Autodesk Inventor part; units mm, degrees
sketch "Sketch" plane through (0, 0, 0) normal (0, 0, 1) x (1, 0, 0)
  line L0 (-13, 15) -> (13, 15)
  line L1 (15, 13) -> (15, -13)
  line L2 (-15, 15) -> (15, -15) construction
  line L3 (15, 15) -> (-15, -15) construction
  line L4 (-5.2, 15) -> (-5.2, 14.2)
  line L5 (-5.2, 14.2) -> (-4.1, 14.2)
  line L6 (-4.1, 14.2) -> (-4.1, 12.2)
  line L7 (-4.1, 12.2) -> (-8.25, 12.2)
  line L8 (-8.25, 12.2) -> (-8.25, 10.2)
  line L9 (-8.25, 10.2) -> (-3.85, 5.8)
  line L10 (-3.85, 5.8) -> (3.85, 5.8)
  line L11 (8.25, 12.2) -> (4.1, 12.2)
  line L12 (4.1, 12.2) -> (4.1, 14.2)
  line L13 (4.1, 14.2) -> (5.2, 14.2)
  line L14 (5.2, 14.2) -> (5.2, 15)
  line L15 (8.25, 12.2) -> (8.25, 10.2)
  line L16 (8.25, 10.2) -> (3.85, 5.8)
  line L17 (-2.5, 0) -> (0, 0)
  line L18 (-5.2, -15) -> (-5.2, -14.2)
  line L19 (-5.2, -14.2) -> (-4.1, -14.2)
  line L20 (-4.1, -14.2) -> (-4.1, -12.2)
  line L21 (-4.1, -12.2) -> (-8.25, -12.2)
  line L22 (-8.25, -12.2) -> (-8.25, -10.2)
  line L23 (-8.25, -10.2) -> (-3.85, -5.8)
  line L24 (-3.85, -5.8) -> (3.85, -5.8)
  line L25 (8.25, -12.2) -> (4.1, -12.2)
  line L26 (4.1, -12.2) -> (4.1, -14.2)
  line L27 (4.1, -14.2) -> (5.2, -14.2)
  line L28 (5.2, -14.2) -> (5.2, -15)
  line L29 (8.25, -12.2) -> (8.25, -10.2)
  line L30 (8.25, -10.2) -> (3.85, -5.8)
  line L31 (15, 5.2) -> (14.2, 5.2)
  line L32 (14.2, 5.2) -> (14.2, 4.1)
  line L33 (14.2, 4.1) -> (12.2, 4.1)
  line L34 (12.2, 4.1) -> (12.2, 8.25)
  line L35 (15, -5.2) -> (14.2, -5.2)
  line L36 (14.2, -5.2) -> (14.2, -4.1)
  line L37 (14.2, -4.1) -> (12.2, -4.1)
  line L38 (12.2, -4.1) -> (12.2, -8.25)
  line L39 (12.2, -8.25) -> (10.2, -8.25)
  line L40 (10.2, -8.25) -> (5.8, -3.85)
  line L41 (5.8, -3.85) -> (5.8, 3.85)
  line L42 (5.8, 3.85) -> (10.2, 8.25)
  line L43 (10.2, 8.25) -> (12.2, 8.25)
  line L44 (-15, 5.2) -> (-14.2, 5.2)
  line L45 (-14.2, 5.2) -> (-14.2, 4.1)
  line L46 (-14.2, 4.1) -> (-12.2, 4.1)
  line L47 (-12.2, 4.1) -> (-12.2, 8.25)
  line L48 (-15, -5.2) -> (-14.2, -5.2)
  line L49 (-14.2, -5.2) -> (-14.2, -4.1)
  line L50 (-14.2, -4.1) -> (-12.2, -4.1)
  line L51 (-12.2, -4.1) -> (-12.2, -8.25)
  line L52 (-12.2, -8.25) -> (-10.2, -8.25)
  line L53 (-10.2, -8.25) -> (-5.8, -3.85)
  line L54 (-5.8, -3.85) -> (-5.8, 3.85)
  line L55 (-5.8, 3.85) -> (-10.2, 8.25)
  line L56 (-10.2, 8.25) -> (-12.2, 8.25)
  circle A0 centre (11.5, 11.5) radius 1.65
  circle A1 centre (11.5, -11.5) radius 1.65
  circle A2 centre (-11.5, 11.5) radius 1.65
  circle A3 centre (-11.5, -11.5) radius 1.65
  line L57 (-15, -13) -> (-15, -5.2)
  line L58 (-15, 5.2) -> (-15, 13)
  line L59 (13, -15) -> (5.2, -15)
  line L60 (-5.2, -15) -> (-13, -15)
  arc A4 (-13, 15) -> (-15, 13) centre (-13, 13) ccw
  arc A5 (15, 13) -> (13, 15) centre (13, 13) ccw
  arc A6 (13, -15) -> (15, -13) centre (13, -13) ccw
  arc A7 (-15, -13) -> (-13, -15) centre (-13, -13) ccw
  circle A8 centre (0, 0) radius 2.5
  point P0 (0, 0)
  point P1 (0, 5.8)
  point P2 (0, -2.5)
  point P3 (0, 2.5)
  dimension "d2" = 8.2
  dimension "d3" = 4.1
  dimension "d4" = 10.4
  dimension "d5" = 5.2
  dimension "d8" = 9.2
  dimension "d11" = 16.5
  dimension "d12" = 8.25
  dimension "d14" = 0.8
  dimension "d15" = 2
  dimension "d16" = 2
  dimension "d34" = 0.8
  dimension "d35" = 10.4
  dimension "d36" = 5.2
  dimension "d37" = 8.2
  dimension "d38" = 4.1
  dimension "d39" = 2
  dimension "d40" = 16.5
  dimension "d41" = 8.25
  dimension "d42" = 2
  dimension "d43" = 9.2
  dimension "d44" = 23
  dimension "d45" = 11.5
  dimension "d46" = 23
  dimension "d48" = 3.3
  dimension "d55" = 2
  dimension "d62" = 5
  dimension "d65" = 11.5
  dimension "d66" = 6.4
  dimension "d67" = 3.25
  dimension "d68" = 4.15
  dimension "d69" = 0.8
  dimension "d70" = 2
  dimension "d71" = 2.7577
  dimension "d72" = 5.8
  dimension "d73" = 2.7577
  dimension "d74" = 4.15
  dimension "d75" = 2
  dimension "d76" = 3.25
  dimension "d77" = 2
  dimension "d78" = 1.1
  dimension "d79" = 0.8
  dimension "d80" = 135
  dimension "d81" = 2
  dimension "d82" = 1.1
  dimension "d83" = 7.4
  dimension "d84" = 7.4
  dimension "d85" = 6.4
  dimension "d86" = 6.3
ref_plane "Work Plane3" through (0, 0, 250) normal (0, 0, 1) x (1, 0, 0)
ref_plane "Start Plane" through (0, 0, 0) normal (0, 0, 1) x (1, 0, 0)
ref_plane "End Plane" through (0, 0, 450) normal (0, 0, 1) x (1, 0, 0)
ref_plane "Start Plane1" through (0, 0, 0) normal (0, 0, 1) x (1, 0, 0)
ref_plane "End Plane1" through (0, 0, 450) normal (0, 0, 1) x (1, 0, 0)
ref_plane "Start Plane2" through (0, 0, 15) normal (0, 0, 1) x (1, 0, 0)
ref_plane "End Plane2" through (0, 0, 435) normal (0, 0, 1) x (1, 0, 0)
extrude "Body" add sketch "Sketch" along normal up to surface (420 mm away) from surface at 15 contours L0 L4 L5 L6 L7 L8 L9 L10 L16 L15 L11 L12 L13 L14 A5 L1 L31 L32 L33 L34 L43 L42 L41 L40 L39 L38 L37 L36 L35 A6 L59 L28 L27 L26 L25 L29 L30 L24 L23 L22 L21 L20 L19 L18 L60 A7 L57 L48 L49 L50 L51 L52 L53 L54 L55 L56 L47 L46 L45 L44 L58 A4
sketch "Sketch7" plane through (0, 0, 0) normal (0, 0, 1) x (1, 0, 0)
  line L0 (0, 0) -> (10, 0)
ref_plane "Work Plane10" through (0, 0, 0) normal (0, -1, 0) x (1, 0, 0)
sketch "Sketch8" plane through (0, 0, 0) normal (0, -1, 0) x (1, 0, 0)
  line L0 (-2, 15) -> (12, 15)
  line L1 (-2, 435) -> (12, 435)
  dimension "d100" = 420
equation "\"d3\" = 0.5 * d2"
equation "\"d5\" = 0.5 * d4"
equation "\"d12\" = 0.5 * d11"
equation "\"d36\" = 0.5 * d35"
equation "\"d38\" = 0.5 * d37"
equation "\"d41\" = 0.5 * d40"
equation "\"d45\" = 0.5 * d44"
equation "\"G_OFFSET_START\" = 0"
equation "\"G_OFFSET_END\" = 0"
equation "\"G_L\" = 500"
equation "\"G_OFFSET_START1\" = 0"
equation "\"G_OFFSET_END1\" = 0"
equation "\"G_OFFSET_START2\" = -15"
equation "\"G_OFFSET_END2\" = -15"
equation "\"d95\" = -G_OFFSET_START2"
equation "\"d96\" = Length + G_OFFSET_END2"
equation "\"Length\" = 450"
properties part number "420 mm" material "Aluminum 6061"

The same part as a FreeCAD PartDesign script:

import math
import FreeCAD as App
import Part
import Sketcher

V = App.Vector
Q = App.Units.Quantity

doc = App.newDocument("Part")
body = doc.addObject("PartDesign::Body", "Body")

# Sketch on XY plane
sketch1 = body.newObject("Sketcher::SketchObject", "Sketch")
sketch1.AttachmentSupport = (doc.getObject("XY_Plane"), [""])
sketch1.MapMode = "FlatFace"
sketch1.AttachmentOffset = App.Placement(V(0, 0, 15), App.Rotation())
sketch1.addGeometry([
    Part.LineSegment(V(-5.2, 15, 0), V(-13, 15, 0)),  # 0
    Part.ArcOfCircle(Part.Circle(V(-13, 13, 0), V(0, 0, 1), 2), math.radians(90), math.radians(180)),  # 1
    Part.LineSegment(V(-15, 13, 0), V(-15, 5.2, 0)),  # 2
    Part.LineSegment(V(-15, 5.2, 0), V(-14.2, 5.2, 0)),  # 3
    Part.LineSegment(V(-14.2, 5.2, 0), V(-14.2, 4.1, 0)),  # 4
    Part.LineSegment(V(-14.2, 4.1, 0), V(-12.2, 4.1, 0)),  # 5
    Part.LineSegment(V(-12.2, 4.1, 0), V(-12.2, 8.25, 0)),  # 6
    Part.LineSegment(V(-12.2, 8.25, 0), V(-10.2, 8.25, 0)),  # 7
    Part.LineSegment(V(-10.2, 8.25, 0), V(-5.8, 3.85, 0)),  # 8
    Part.LineSegment(V(-5.8, 3.85, 0), V(-5.8, -3.85, 0)),  # 9
    Part.LineSegment(V(-5.8, -3.85, 0), V(-10.2, -8.25, 0)),  # 10
    Part.LineSegment(V(-10.2, -8.25, 0), V(-12.2, -8.25, 0)),  # 11
    Part.LineSegment(V(-12.2, -8.25, 0), V(-12.2, -4.1, 0)),  # 12
    Part.LineSegment(V(-12.2, -4.1, 0), V(-14.2, -4.1, 0)),  # 13
    Part.LineSegment(V(-14.2, -4.1, 0), V(-14.2, -5.2, 0)),  # 14
    Part.LineSegment(V(-14.2, -5.2, 0), V(-15, -5.2, 0)),  # 15
    Part.LineSegment(V(-15, -5.2, 0), V(-15, -13, 0)),  # 16
    Part.ArcOfCircle(Part.Circle(V(-13, -13, 0), V(0, 0, 1), 2), math.radians(180), math.radians(270)),  # 17
    Part.LineSegment(V(-13, -15, 0), V(-5.2, -15, 0)),  # 18
    Part.LineSegment(V(-5.2, -15, 0), V(-5.2, -14.2, 0)),  # 19
    Part.LineSegment(V(-5.2, -14.2, 0), V(-4.1, -14.2, 0)),  # 20
    Part.LineSegment(V(-4.1, -14.2, 0), V(-4.1, -12.2, 0)),  # 21
    Part.LineSegment(V(-4.1, -12.2, 0), V(-8.25, -12.2, 0)),  # 22
    Part.LineSegment(V(-8.25, -12.2, 0), V(-8.25, -10.2, 0)),  # 23
    Part.LineSegment(V(-8.25, -10.2, 0), V(-3.85, -5.8, 0)),  # 24
    Part.LineSegment(V(-3.85, -5.8, 0), V(3.85, -5.8, 0)),  # 25
    Part.LineSegment(V(3.85, -5.8, 0), V(8.25, -10.2, 0)),  # 26
    Part.LineSegment(V(8.25, -10.2, 0), V(8.25, -12.2, 0)),  # 27
    Part.LineSegment(V(8.25, -12.2, 0), V(4.1, -12.2, 0)),  # 28
    Part.LineSegment(V(4.1, -12.2, 0), V(4.1, -14.2, 0)),  # 29
    Part.LineSegment(V(4.1, -14.2, 0), V(5.2, -14.2, 0)),  # 30
    Part.LineSegment(V(5.2, -14.2, 0), V(5.2, -15, 0)),  # 31
    Part.LineSegment(V(5.2, -15, 0), V(13, -15, 0)),  # 32
    Part.ArcOfCircle(Part.Circle(V(13, -13, 0), V(0, 0, 1), 2), math.radians(-90), math.radians(0)),  # 33
    Part.LineSegment(V(15, -13, 0), V(15, -5.2, 0)),  # 34
    Part.LineSegment(V(15, -5.2, 0), V(14.2, -5.2, 0)),  # 35
    Part.LineSegment(V(14.2, -5.2, 0), V(14.2, -4.1, 0)),  # 36
    Part.LineSegment(V(14.2, -4.1, 0), V(12.2, -4.1, 0)),  # 37
    Part.LineSegment(V(12.2, -4.1, 0), V(12.2, -8.25, 0)),  # 38
    Part.LineSegment(V(12.2, -8.25, 0), V(10.2, -8.25, 0)),  # 39
    Part.LineSegment(V(10.2, -8.25, 0), V(5.8, -3.85, 0)),  # 40
    Part.LineSegment(V(5.8, -3.85, 0), V(5.8, 3.85, 0)),  # 41
    Part.LineSegment(V(5.8, 3.85, 0), V(10.2, 8.25, 0)),  # 42
    Part.LineSegment(V(10.2, 8.25, 0), V(12.2, 8.25, 0)),  # 43
    Part.LineSegment(V(12.2, 8.25, 0), V(12.2, 4.1, 0)),  # 44
    Part.LineSegment(V(12.2, 4.1, 0), V(14.2, 4.1, 0)),  # 45
    Part.LineSegment(V(14.2, 4.1, 0), V(14.2, 5.2, 0)),  # 46
    Part.LineSegment(V(14.2, 5.2, 0), V(15, 5.2, 0)),  # 47
    Part.LineSegment(V(15, 5.2, 0), V(15, 13, 0)),  # 48
    Part.ArcOfCircle(Part.Circle(V(13, 13, 0), V(0, 0, 1), 2), math.radians(0), math.radians(90)),  # 49
    Part.LineSegment(V(13, 15, 0), V(5.2, 15, 0)),  # 50
    Part.LineSegment(V(5.2, 15, 0), V(5.2, 14.2, 0)),  # 51
    Part.LineSegment(V(5.2, 14.2, 0), V(4.1, 14.2, 0)),  # 52
    Part.LineSegment(V(4.1, 14.2, 0), V(4.1, 12.2, 0)),  # 53
    Part.LineSegment(V(4.1, 12.2, 0), V(8.25, 12.2, 0)),  # 54
    Part.LineSegment(V(8.25, 12.2, 0), V(8.25, 10.2, 0)),  # 55
    Part.LineSegment(V(8.25, 10.2, 0), V(3.85, 5.8, 0)),  # 56
    Part.LineSegment(V(3.85, 5.8, 0), V(-3.85, 5.8, 0)),  # 57
    Part.LineSegment(V(-3.85, 5.8, 0), V(-8.25, 10.2, 0)),  # 58
    Part.LineSegment(V(-8.25, 10.2, 0), V(-8.25, 12.2, 0)),  # 59
    Part.LineSegment(V(-8.25, 12.2, 0), V(-4.1, 12.2, 0)),  # 60
    Part.LineSegment(V(-4.1, 12.2, 0), V(-4.1, 14.2, 0)),  # 61
    Part.LineSegment(V(-4.1, 14.2, 0), V(-5.2, 14.2, 0)),  # 62
    Part.LineSegment(V(-5.2, 14.2, 0), V(-5.2, 15, 0)),  # 63
    Part.Circle(V(-11.5, -11.5, 0), V(0, 0, 1), 1.65),  # 64
    Part.Circle(V(11.5, -11.5, 0), V(0, 0, 1), 1.65),  # 65
    Part.Circle(V(-11.5, 11.5, 0), V(0, 0, 1), 1.65),  # 66
    Part.Circle(V(0, 0, 0), V(0, 0, 1), 2.5),  # 67
    Part.Circle(V(11.5, 11.5, 0), V(0, 0, 1), 1.65),  # 68
], False)
sketch1.addConstraint([
    Sketcher.Constraint("Tangent", 0, 2, 1, 1),
    Sketcher.Constraint("Tangent", 1, 2, 2, 1),
    Sketcher.Constraint("Coincident", 2, 2, 3, 1),
    Sketcher.Constraint("Coincident", 3, 2, 4, 1),
    Sketcher.Constraint("Coincident", 4, 2, 5, 1),
    Sketcher.Constraint("Coincident", 5, 2, 6, 1),
    Sketcher.Constraint("Coincident", 6, 2, 7, 1),
    Sketcher.Constraint("Coincident", 7, 2, 8, 1),
    Sketcher.Constraint("Coincident", 8, 2, 9, 1),
    Sketcher.Constraint("Coincident", 9, 2, 10, 1),
    Sketcher.Constraint("Coincident", 10, 2, 11, 1),
    Sketcher.Constraint("Coincident", 11, 2, 12, 1),
    Sketcher.Constraint("Coincident", 12, 2, 13, 1),
    Sketcher.Constraint("Coincident", 13, 2, 14, 1),
    Sketcher.Constraint("Coincident", 14, 2, 15, 1),
    Sketcher.Constraint("Coincident", 15, 2, 16, 1),
    Sketcher.Constraint("Tangent", 16, 2, 17, 1),
    Sketcher.Constraint("Tangent", 17, 2, 18, 1),
    Sketcher.Constraint("Coincident", 18, 2, 19, 1),
    Sketcher.Constraint("Coincident", 19, 2, 20, 1),
    Sketcher.Constraint("Coincident", 20, 2, 21, 1),
    Sketcher.Constraint("Coincident", 21, 2, 22, 1),
    Sketcher.Constraint("Coincident", 22, 2, 23, 1),
    Sketcher.Constraint("Coincident", 23, 2, 24, 1),
    Sketcher.Constraint("Coincident", 24, 2, 25, 1),
    Sketcher.Constraint("Coincident", 25, 2, 26, 1),
    Sketcher.Constraint("Coincident", 26, 2, 27, 1),
    Sketcher.Constraint("Coincident", 27, 2, 28, 1),
    Sketcher.Constraint("Coincident", 28, 2, 29, 1),
    Sketcher.Constraint("Coincident", 29, 2, 30, 1),
    Sketcher.Constraint("Coincident", 30, 2, 31, 1),
    Sketcher.Constraint("Coincident", 31, 2, 32, 1),
    Sketcher.Constraint("Tangent", 32, 2, 33, 1),
    Sketcher.Constraint("Tangent", 33, 2, 34, 1),
    Sketcher.Constraint("Coincident", 34, 2, 35, 1),
    Sketcher.Constraint("Coincident", 35, 2, 36, 1),
    Sketcher.Constraint("Coincident", 36, 2, 37, 1),
    Sketcher.Constraint("Coincident", 37, 2, 38, 1),
    Sketcher.Constraint("Coincident", 38, 2, 39, 1),
    Sketcher.Constraint("Coincident", 39, 2, 40, 1),
    Sketcher.Constraint("Coincident", 40, 2, 41, 1),
    Sketcher.Constraint("Coincident", 41, 2, 42, 1),
    Sketcher.Constraint("Coincident", 42, 2, 43, 1),
    Sketcher.Constraint("Coincident", 43, 2, 44, 1),
    Sketcher.Constraint("Coincident", 44, 2, 45, 1),
    Sketcher.Constraint("Coincident", 45, 2, 46, 1),
    Sketcher.Constraint("Coincident", 46, 2, 47, 1),
    Sketcher.Constraint("Coincident", 47, 2, 48, 1),
    Sketcher.Constraint("Tangent", 48, 2, 49, 1),
    Sketcher.Constraint("Tangent", 49, 2, 50, 1),
    Sketcher.Constraint("Coincident", 50, 2, 51, 1),
    Sketcher.Constraint("Coincident", 51, 2, 52, 1),
    Sketcher.Constraint("Coincident", 52, 2, 53, 1),
    Sketcher.Constraint("Coincident", 53, 2, 54, 1),
    Sketcher.Constraint("Coincident", 54, 2, 55, 1),
    Sketcher.Constraint("Coincident", 55, 2, 56, 1),
    Sketcher.Constraint("Coincident", 56, 2, 57, 1),
    Sketcher.Constraint("Coincident", 57, 2, 58, 1),
    Sketcher.Constraint("Coincident", 58, 2, 59, 1),
    Sketcher.Constraint("Coincident", 59, 2, 60, 1),
    Sketcher.Constraint("Coincident", 60, 2, 61, 1),
    Sketcher.Constraint("Coincident", 61, 2, 62, 1),
    Sketcher.Constraint("Coincident", 62, 2, 63, 1),
    Sketcher.Constraint("Coincident", 63, 2, 0, 1),
    Sketcher.Constraint("Horizontal", 0),
    Sketcher.Constraint("Vertical", 2),
    Sketcher.Constraint("Horizontal", 3),
    Sketcher.Constraint("Vertical", 4),
    Sketcher.Constraint("Horizontal", 5),
    Sketcher.Constraint("Vertical", 6),
    Sketcher.Constraint("Horizontal", 7),
    Sketcher.Constraint("Vertical", 9),
    Sketcher.Constraint("Horizontal", 11),
    Sketcher.Constraint("Vertical", 12),
    Sketcher.Constraint("Horizontal", 13),
    Sketcher.Constraint("Vertical", 14),
    Sketcher.Constraint("Horizontal", 15),
    Sketcher.Constraint("Vertical", 16),
    Sketcher.Constraint("Horizontal", 18),
    Sketcher.Constraint("Vertical", 19),
    Sketcher.Constraint("Horizontal", 20),
    Sketcher.Constraint("Vertical", 21),
    Sketcher.Constraint("Horizontal", 22),
    Sketcher.Constraint("Vertical", 23),
    Sketcher.Constraint("Horizontal", 25),
    Sketcher.Constraint("Vertical", 27),
    Sketcher.Constraint("Horizontal", 28),
    Sketcher.Constraint("Vertical", 29),
    Sketcher.Constraint("Horizontal", 30),
    Sketcher.Constraint("Vertical", 31),
    Sketcher.Constraint("Horizontal", 32),
    Sketcher.Constraint("Vertical", 34),
    Sketcher.Constraint("Horizontal", 35),
    Sketcher.Constraint("Vertical", 36),
    Sketcher.Constraint("Horizontal", 37),
    Sketcher.Constraint("Vertical", 38),
    Sketcher.Constraint("Horizontal", 39),
    Sketcher.Constraint("Vertical", 41),
    Sketcher.Constraint("Horizontal", 43),
    Sketcher.Constraint("Vertical", 44),
    Sketcher.Constraint("Horizontal", 45),
    Sketcher.Constraint("Vertical", 46),
    Sketcher.Constraint("Horizontal", 47),
    Sketcher.Constraint("Vertical", 48),
    Sketcher.Constraint("Horizontal", 50),
    Sketcher.Constraint("Vertical", 51),
    Sketcher.Constraint("Horizontal", 52),
    Sketcher.Constraint("Vertical", 53),
    Sketcher.Constraint("Horizontal", 54),
    Sketcher.Constraint("Vertical", 55),
    Sketcher.Constraint("Horizontal", 57),
    Sketcher.Constraint("Vertical", 59),
    Sketcher.Constraint("Horizontal", 60),
    Sketcher.Constraint("Vertical", 61),
    Sketcher.Constraint("Horizontal", 62),
    Sketcher.Constraint("Vertical", 63),
    Sketcher.Constraint("Coincident", 67, 3, -1, 1),
    Sketcher.Constraint("Equal", 1, 17),
    Sketcher.Constraint("Equal", 17, 33),
    Sketcher.Constraint("Equal", 33, 49),
    Sketcher.Constraint("Equal", 64, 65),
    Sketcher.Constraint("Equal", 65, 66),
    Sketcher.Constraint("Equal", 66, 68),
    Sketcher.Constraint("Symmetric", 1, 3, 33, 3, -1, 1),
    Sketcher.Constraint("Symmetric", 17, 3, 49, 3, -1, 1),
    Sketcher.Constraint("Symmetric", 65, 3, 66, 3, -1, 1),
    Sketcher.Constraint("Symmetric", 64, 3, 68, 3, -1, 1),
    Sketcher.Constraint("Symmetric", 3, 2, 35, 2, -1, 1),
    Sketcher.Constraint("Symmetric", 5, 2, 37, 2, -1, 1),
    Sketcher.Constraint("Symmetric", 7, 2, 39, 2, -1, 1),
    Sketcher.Constraint("Symmetric", 8, 2, 40, 2, -1, 1),
    Sketcher.Constraint("Symmetric", 10, 2, 42, 2, -1, 1),
    Sketcher.Constraint("Symmetric", 12, 2, 44, 2, -1, 1),
    Sketcher.Constraint("Symmetric", 14, 2, 46, 2, -1, 1),
    Sketcher.Constraint("Symmetric", 19, 2, 51, 2, -1, 1),
    Sketcher.Constraint("Symmetric", 21, 2, 53, 2, -1, 1),
    Sketcher.Constraint("Symmetric", 23, 2, 55, 2, -1, 1),
    Sketcher.Constraint("Symmetric", 24, 2, 56, 2, -1, 1),
    Sketcher.Constraint("Symmetric", 26, 2, 58, 2, -1, 1),
    Sketcher.Constraint("Symmetric", 28, 2, 60, 2, -1, 1),
    Sketcher.Constraint("Symmetric", 30, 2, 62, 2, -1, 1),
    Sketcher.Constraint("Symmetric", 17, 3, 33, 3, -2),
    Sketcher.Constraint("Symmetric", 64, 3, 65, 3, -2),
    Sketcher.Constraint("Symmetric", 23, 2, 26, 2, -2),
    Sketcher.Constraint("Symmetric", 21, 2, 28, 2, -2),
    Sketcher.Constraint("Symmetric", 19, 2, 30, 2, -2),
    Sketcher.Constraint("Symmetric", 14, 2, 35, 2, -2),
    Sketcher.Constraint("Symmetric", 12, 2, 37, 2, -2),
    Sketcher.Constraint("Symmetric", 10, 2, 39, 2, -2),
    Sketcher.Constraint("Perpendicular", 8, 10),
    Sketcher.Constraint("Parallel", 10, 24),
    Sketcher.Constraint("Perpendicular", 24, 26),
    Sketcher.Constraint("Perpendicular", 40, 42),
    Sketcher.Constraint("Perpendicular", 56, 58),
    Sketcher.Constraint("Horizontal", 9, 2, 40, 2),
    Sketcher.Constraint("Equal", 5, 7),
    Sketcher.Constraint("Equal", 50, 2),
    Sketcher.Constraint("Equal", 62, 4),
    Sketcher.Constraint("Equal", 60, 6),
    Sketcher.Constraint("Equal", 57, 9),
    Sketcher.Constraint("Equal", 47, 19),
    Sketcher.Constraint("Equal", 45, 21),
    Sketcher.Constraint("Equal", 21, 23),
    Sketcher.Constraint("Equal", 10, 24),
    Sketcher.Constraint("Diameter", 67, Q("5 mm")),
    Sketcher.Constraint("Radius", 1, Q("2 mm")),
    Sketcher.Constraint("Diameter", 64, Q("3.3 mm")),
    Sketcher.Constraint("DistanceX", 5, 1, 5, 2, Q("2 mm")),
    Sketcher.Constraint("DistanceX", 3, 1, 3, 2, Q("0.8 mm")),
    Sketcher.Constraint("DistanceX", 20, 1, 20, 2, Q("1.1 mm")),
    Sketcher.Constraint("DistanceX", 22, 2, 22, 1, Q("4.15 mm")),
    Sketcher.Constraint("DistanceX", 64, 3, -1, 1, Q("11.5 mm")),
    Sketcher.Constraint("DistanceY", 64, 3, -1, 1, Q("11.5 mm")),
    Sketcher.Constraint("DistanceY", -1, 1, 2, 2, Q("5.2 mm")),
    Sketcher.Constraint("DistanceX", 8, 2, -1, 1, Q("5.8 mm")),
    Sketcher.Constraint("DistanceX", 0, 2, 0, 1, Q("7.8 mm")),
])
pad1 = body.newObject("PartDesign::Pad", "Pad")
pad1.Profile = sketch1
pad1.Length = 420

doc.recompute()
